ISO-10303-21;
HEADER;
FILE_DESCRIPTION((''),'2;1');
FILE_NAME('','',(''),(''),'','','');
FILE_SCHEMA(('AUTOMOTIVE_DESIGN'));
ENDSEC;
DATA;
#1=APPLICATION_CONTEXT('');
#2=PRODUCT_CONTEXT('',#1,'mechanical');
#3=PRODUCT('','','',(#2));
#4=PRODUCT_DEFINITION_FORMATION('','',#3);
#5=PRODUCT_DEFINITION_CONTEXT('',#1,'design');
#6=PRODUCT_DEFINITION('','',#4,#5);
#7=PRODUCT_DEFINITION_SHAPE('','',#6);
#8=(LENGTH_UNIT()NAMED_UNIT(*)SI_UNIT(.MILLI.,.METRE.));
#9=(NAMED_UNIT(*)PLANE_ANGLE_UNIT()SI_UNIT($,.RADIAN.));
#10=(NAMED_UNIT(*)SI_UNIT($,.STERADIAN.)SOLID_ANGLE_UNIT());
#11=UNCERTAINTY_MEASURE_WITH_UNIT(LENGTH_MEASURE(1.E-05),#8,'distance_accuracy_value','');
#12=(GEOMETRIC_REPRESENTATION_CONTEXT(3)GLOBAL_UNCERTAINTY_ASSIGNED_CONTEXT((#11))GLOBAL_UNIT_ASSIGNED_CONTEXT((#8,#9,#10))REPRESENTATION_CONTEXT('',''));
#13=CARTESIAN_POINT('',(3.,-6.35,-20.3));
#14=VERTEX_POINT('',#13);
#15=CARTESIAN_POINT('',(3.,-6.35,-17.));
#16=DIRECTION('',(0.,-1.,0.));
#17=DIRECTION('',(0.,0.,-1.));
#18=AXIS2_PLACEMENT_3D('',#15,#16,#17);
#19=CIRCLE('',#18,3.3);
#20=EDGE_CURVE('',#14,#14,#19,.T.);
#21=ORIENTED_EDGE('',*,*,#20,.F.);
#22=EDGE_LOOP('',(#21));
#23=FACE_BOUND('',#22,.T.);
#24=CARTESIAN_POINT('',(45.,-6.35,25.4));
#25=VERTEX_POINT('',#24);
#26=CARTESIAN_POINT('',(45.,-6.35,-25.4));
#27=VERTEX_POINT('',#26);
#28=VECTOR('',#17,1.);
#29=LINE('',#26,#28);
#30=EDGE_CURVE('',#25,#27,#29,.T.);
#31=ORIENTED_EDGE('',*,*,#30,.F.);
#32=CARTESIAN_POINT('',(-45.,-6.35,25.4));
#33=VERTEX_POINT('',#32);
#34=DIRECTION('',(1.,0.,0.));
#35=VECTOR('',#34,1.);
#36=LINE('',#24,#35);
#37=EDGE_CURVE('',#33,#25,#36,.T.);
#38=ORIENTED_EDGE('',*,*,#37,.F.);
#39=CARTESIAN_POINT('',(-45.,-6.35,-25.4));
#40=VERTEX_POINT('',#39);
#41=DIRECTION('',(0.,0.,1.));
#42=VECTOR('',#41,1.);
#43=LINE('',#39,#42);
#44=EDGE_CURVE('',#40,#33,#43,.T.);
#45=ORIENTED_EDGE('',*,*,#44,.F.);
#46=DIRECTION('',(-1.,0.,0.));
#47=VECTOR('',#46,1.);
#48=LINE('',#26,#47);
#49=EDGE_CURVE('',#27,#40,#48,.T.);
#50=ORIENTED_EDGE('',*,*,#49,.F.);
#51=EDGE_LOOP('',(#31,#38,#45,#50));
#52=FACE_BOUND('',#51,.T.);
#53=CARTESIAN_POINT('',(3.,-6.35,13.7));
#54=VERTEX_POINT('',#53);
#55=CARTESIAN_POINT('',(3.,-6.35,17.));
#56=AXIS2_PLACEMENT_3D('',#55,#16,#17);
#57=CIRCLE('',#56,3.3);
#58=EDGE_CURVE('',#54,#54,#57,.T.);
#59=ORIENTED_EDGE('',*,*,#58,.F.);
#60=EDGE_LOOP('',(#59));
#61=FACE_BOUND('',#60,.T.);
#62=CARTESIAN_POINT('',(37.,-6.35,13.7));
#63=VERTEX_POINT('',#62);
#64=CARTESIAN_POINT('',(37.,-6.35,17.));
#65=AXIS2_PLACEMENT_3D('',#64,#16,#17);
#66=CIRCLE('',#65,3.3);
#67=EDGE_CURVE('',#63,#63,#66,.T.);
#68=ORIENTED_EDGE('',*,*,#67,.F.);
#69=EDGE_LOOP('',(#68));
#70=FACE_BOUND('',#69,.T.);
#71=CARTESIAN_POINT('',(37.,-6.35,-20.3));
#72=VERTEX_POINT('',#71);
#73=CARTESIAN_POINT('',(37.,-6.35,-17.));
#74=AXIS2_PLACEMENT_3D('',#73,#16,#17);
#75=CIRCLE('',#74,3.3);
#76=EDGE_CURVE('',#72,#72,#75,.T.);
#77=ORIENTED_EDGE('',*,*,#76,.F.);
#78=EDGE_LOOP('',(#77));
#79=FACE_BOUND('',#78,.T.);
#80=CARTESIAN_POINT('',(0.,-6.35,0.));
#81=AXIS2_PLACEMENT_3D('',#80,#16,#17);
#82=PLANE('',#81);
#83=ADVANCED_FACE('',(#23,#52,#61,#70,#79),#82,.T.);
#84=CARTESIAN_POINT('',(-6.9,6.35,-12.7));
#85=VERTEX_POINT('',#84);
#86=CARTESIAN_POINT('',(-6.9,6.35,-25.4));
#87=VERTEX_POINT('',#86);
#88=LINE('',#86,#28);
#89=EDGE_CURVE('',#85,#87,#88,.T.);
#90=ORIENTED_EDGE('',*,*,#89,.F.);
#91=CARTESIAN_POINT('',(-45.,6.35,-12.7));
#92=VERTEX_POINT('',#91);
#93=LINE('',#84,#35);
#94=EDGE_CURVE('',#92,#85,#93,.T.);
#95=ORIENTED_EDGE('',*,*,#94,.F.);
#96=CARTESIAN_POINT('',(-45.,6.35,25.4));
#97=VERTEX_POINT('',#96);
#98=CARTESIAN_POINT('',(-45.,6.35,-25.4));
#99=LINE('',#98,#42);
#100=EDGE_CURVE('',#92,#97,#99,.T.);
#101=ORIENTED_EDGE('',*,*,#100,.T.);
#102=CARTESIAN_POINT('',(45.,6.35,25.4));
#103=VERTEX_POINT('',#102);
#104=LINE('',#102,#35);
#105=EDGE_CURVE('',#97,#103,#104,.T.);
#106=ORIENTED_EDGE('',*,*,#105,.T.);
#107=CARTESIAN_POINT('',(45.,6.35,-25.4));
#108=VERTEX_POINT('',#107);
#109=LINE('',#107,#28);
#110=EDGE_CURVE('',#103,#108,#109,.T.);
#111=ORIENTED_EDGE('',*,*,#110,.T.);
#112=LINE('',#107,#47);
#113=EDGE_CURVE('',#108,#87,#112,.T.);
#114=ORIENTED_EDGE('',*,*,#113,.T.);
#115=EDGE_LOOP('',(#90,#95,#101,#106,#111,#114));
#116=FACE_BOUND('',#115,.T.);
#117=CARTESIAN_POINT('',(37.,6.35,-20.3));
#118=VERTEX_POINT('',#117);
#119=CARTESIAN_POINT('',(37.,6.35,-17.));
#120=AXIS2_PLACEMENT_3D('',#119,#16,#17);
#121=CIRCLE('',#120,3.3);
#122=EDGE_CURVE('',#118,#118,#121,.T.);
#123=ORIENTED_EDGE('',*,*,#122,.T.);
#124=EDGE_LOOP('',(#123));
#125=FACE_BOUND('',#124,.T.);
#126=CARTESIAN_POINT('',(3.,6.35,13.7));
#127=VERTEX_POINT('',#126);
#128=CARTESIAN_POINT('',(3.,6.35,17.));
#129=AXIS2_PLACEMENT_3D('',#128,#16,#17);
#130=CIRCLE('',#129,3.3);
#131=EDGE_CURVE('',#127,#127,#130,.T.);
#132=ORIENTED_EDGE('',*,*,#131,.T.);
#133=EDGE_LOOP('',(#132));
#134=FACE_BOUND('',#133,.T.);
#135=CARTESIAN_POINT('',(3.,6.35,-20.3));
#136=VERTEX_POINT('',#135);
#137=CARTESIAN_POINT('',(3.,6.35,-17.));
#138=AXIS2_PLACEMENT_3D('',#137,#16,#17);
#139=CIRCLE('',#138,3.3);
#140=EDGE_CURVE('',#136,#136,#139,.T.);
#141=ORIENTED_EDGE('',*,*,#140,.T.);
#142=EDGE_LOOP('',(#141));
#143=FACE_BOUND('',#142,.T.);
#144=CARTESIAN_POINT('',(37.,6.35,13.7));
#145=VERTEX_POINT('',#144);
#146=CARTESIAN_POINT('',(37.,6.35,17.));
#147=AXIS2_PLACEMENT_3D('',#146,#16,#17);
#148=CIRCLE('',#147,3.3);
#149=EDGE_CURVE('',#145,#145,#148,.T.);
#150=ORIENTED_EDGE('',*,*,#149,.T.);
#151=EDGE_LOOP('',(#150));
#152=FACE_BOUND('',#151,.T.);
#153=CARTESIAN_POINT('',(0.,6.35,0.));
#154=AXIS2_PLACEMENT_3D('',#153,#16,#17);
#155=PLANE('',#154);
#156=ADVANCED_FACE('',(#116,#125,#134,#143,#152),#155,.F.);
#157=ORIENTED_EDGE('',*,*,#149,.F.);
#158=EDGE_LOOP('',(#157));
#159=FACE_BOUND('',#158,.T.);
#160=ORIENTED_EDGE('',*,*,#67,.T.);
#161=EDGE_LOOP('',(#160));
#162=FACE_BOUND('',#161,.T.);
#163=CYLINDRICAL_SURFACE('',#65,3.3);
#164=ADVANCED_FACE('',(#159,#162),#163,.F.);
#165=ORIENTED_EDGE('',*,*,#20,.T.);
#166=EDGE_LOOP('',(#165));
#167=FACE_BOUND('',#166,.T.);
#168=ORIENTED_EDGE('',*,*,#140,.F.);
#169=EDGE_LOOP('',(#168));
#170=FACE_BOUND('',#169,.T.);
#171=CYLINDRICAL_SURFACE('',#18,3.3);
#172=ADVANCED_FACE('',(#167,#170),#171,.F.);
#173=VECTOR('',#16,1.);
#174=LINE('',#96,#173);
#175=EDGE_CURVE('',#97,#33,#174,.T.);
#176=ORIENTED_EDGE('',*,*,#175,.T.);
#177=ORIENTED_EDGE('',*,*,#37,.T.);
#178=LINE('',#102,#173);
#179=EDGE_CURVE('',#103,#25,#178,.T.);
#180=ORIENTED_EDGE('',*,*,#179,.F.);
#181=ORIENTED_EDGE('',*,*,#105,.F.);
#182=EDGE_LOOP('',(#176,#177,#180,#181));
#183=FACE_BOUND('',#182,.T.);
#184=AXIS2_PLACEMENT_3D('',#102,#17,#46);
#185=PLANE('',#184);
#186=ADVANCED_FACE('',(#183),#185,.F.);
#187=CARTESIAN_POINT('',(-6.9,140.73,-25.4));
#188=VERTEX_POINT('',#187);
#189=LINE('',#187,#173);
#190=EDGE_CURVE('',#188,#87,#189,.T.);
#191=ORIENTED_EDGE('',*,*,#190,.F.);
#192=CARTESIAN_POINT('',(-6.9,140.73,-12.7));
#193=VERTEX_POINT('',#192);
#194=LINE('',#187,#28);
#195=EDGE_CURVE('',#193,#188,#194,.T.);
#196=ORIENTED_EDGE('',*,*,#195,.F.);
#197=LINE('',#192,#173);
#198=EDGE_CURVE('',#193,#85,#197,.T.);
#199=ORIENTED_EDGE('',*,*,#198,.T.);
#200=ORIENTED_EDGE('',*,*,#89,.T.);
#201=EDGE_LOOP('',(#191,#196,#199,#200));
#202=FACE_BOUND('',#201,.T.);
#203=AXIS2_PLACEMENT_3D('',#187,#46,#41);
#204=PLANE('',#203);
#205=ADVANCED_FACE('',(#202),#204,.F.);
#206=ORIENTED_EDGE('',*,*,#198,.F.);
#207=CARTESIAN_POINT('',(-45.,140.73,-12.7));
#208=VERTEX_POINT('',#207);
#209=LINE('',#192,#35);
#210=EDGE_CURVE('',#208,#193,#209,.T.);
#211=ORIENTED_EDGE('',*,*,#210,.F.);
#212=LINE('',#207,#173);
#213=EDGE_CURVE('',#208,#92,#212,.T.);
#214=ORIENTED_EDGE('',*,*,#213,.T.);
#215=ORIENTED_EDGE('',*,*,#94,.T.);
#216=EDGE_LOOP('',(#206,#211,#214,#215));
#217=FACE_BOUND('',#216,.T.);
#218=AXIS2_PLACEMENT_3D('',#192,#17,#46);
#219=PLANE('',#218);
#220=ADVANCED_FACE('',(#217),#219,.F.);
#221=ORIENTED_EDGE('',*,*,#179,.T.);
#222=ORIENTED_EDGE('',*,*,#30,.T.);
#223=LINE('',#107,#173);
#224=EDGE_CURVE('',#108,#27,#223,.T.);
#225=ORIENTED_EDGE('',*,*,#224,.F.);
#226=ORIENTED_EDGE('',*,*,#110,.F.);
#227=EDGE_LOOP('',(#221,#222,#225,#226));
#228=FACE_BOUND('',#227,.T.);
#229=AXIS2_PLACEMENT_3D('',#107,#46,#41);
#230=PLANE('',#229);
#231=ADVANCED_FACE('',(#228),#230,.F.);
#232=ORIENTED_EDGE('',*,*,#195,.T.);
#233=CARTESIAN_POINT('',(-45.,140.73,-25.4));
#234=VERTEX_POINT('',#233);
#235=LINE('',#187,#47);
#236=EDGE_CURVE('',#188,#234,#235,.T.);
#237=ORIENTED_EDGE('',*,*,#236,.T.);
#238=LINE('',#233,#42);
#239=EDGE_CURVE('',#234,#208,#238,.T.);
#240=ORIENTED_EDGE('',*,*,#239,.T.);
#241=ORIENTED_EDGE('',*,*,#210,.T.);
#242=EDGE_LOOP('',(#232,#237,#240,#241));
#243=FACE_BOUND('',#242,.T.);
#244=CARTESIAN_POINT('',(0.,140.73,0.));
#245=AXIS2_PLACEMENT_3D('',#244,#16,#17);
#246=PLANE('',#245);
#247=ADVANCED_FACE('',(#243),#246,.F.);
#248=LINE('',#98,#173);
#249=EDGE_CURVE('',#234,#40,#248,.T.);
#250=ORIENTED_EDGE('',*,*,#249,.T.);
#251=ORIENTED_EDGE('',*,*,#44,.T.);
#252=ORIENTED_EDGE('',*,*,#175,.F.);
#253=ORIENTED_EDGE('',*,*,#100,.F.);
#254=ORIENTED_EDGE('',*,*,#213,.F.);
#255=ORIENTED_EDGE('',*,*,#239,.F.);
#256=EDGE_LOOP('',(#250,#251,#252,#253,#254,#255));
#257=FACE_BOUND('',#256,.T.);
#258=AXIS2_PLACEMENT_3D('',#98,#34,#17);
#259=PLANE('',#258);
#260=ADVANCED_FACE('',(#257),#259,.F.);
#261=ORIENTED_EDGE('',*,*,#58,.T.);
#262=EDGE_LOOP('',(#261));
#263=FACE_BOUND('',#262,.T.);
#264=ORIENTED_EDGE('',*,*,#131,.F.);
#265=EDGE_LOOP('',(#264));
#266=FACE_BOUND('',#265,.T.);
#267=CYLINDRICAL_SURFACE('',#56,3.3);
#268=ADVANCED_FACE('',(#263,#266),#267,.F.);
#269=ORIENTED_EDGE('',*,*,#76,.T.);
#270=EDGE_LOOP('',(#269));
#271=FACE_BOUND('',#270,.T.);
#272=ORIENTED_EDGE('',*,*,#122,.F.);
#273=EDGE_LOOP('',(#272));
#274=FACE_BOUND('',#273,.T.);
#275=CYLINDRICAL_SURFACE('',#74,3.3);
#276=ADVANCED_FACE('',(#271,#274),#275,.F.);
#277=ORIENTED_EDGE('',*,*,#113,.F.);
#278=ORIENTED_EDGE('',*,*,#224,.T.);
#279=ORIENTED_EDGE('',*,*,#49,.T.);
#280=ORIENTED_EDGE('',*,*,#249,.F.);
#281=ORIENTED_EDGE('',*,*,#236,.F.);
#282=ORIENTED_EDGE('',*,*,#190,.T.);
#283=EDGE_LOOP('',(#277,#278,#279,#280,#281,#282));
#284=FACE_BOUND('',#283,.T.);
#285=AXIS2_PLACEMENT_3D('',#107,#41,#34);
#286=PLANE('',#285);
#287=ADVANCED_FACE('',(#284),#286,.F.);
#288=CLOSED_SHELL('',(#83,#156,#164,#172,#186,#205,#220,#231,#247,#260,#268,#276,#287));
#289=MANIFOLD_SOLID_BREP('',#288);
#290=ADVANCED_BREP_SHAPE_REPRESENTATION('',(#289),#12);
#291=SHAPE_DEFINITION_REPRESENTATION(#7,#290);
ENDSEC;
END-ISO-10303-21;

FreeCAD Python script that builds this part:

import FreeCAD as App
import Part
import Sketcher
Q = App.Units.Quantity

doc = App.newDocument("Part")
body = doc.addObject("PartDesign::Body", "Body")

sketch1 = body.newObject("Sketcher::SketchObject", "Sketch")
sketch1.AttachmentSupport = (doc.getObject("XZ_Plane"), [""])
sketch1.MapMode = "FlatFace"
sketch1.addGeometry([
    Part.LineSegment(App.Vector(-45, -25, 0), App.Vector(-45, 25, 0)),
    Part.LineSegment(App.Vector(-45, 25, 0), App.Vector(45, 25, 0)),
    Part.LineSegment(App.Vector(45, 25, 0), App.Vector(45, -25, 0)),
    Part.LineSegment(App.Vector(45, -25, 0), App.Vector(-45, -25, 0)),
], False)
sketch1.addConstraint([
    Sketcher.Constraint("Coincident", 0, 2, 1, 1),
    Sketcher.Constraint("Coincident", 1, 2, 2, 1),
    Sketcher.Constraint("Coincident", 2, 2, 3, 1),
    Sketcher.Constraint("Coincident", 3, 2, 0, 1),
    Sketcher.Constraint("Vertical", 0),
    Sketcher.Constraint("Horizontal", 1),
    Sketcher.Constraint("Vertical", 2),
    Sketcher.Constraint("Horizontal", 3),
    Sketcher.Constraint("Symmetric", 0, 2, 2, 2, -1, 1),
    Sketcher.Constraint("DistanceY", 0, 1, 0, 2, Q("2 in")),
    Sketcher.Constraint("DistanceX", 1, 1, 1, 2, Q("90 mm")),
])
pad1 = body.newObject("PartDesign::Pad", "Pad")
pad1.Profile = sketch1
pad1.Length = Q("0.5 in")
pad1.Midplane = True

sketch2 = body.newObject("Sketcher::SketchObject", "Sketch001")
sketch2.AttachmentSupport = (doc.getObject("XZ_Plane"), [""])
sketch2.MapMode = "FlatFace"
sketch2.AttachmentOffset = App.Placement(App.Vector(0, 0, 0.25 * 25.4), App.Rotation())
sketch2.addGeometry([
    Part.Circle(App.Vector(36.6, 75.7, 0), App.Vector(0, 0, 1), 3.3),
    Part.Circle(App.Vector(37, 17, 0), App.Vector(0, 0, 1), 3.3),
    Part.Circle(App.Vector(37, -17, 0), App.Vector(0, 0, 1), 3.3),
    Part.Circle(App.Vector(3, 17, 0), App.Vector(0, 0, 1), 3.3),
    Part.Circle(App.Vector(3, -17, 0), App.Vector(0, 0, 1), 3.3),
], False)
sketch2.addConstraint([
    Sketcher.Constraint("Equal", 0, 1),
    Sketcher.Constraint("Equal", 1, 2),
    Sketcher.Constraint("Equal", 2, 3),
    Sketcher.Constraint("Equal", 3, 4),
    Sketcher.Constraint("Symmetric", 1, 3, 2, 3, -1),
    Sketcher.Constraint("Symmetric", 3, 3, 4, 3, -1),
    Sketcher.Constraint("Horizontal", 1, 3, 3, 3),
    Sketcher.Constraint("Diameter", 0, Q("6.6 mm")),
    Sketcher.Constraint("DistanceX", -1, 1, 1, 3, Q("37 mm")),
    Sketcher.Constraint("DistanceY", -1, 1, 1, 3, Q("17 mm")),
    Sketcher.Constraint("DistanceX", -1, 1, 3, 3, Q("3 mm")),
    Sketcher.Constraint("DistanceX", -1, 1, 0, 3, Q("36.583685 mm")),
    Sketcher.Constraint("DistanceY", -1, 1, 0, 3, Q("75.725395 mm")),
])
doc.recompute()
hole = body.newObject("PartDesign::Hole", "Hole")
hole.Profile = sketch2
hole.ThreadType = "None"
hole.Diameter = 6.6
hole.DepthType = "ThroughAll"

sketch3 = body.newObject("Sketcher::SketchObject", "Sketch002")
sketch3.AttachmentSupport = (doc.getObject("XZ_Plane"), [""])
sketch3.MapMode = "FlatFace"
sketch3.AttachmentOffset = App.Placement(App.Vector(0, 0, -0.25 * 25.4), App.Rotation())
sketch3.addGeometry([
    Part.LineSegment(App.Vector(-45, -25, 0), App.Vector(-45, -13, 0)),
    Part.LineSegment(App.Vector(-45, -13, 0), App.Vector(-7, -13, 0)),
    Part.LineSegment(App.Vector(-7, -13, 0), App.Vector(-7, -25, 0)),
    Part.LineSegment(App.Vector(-7, -25, 0), App.Vector(-45, -25, 0)),
], False)
sketch3.addConstraint([
    Sketcher.Constraint("Coincident", 0, 2, 1, 1),
    Sketcher.Constraint("Coincident", 1, 2, 2, 1),
    Sketcher.Constraint("Coincident", 2, 2, 3, 1),
    Sketcher.Constraint("Coincident", 3, 2, 0, 1),
    Sketcher.Constraint("Vertical", 0),
    Sketcher.Constraint("Horizontal", 1),
    Sketcher.Constraint("Vertical", 2),
    Sketcher.Constraint("Horizontal", 3),
    Sketcher.Constraint("DistanceX", 1, 1, 1, 2, Q("1.5 in")),
    Sketcher.Constraint("DistanceY", 0, 1, 0, 2, Q("0.5 in")),
    Sketcher.Constraint("DistanceY", 2, 2, -1, 1, Q("1 in")),
    Sketcher.Constraint("DistanceX", 0, 2, -1, 1, Q("45 mm")),
])
pad2 = body.newObject("PartDesign::Pad", "Pad001")
pad2.Profile = sketch3
pad2.Length = 134.38
pad2.Reversed = True

doc.recompute()
